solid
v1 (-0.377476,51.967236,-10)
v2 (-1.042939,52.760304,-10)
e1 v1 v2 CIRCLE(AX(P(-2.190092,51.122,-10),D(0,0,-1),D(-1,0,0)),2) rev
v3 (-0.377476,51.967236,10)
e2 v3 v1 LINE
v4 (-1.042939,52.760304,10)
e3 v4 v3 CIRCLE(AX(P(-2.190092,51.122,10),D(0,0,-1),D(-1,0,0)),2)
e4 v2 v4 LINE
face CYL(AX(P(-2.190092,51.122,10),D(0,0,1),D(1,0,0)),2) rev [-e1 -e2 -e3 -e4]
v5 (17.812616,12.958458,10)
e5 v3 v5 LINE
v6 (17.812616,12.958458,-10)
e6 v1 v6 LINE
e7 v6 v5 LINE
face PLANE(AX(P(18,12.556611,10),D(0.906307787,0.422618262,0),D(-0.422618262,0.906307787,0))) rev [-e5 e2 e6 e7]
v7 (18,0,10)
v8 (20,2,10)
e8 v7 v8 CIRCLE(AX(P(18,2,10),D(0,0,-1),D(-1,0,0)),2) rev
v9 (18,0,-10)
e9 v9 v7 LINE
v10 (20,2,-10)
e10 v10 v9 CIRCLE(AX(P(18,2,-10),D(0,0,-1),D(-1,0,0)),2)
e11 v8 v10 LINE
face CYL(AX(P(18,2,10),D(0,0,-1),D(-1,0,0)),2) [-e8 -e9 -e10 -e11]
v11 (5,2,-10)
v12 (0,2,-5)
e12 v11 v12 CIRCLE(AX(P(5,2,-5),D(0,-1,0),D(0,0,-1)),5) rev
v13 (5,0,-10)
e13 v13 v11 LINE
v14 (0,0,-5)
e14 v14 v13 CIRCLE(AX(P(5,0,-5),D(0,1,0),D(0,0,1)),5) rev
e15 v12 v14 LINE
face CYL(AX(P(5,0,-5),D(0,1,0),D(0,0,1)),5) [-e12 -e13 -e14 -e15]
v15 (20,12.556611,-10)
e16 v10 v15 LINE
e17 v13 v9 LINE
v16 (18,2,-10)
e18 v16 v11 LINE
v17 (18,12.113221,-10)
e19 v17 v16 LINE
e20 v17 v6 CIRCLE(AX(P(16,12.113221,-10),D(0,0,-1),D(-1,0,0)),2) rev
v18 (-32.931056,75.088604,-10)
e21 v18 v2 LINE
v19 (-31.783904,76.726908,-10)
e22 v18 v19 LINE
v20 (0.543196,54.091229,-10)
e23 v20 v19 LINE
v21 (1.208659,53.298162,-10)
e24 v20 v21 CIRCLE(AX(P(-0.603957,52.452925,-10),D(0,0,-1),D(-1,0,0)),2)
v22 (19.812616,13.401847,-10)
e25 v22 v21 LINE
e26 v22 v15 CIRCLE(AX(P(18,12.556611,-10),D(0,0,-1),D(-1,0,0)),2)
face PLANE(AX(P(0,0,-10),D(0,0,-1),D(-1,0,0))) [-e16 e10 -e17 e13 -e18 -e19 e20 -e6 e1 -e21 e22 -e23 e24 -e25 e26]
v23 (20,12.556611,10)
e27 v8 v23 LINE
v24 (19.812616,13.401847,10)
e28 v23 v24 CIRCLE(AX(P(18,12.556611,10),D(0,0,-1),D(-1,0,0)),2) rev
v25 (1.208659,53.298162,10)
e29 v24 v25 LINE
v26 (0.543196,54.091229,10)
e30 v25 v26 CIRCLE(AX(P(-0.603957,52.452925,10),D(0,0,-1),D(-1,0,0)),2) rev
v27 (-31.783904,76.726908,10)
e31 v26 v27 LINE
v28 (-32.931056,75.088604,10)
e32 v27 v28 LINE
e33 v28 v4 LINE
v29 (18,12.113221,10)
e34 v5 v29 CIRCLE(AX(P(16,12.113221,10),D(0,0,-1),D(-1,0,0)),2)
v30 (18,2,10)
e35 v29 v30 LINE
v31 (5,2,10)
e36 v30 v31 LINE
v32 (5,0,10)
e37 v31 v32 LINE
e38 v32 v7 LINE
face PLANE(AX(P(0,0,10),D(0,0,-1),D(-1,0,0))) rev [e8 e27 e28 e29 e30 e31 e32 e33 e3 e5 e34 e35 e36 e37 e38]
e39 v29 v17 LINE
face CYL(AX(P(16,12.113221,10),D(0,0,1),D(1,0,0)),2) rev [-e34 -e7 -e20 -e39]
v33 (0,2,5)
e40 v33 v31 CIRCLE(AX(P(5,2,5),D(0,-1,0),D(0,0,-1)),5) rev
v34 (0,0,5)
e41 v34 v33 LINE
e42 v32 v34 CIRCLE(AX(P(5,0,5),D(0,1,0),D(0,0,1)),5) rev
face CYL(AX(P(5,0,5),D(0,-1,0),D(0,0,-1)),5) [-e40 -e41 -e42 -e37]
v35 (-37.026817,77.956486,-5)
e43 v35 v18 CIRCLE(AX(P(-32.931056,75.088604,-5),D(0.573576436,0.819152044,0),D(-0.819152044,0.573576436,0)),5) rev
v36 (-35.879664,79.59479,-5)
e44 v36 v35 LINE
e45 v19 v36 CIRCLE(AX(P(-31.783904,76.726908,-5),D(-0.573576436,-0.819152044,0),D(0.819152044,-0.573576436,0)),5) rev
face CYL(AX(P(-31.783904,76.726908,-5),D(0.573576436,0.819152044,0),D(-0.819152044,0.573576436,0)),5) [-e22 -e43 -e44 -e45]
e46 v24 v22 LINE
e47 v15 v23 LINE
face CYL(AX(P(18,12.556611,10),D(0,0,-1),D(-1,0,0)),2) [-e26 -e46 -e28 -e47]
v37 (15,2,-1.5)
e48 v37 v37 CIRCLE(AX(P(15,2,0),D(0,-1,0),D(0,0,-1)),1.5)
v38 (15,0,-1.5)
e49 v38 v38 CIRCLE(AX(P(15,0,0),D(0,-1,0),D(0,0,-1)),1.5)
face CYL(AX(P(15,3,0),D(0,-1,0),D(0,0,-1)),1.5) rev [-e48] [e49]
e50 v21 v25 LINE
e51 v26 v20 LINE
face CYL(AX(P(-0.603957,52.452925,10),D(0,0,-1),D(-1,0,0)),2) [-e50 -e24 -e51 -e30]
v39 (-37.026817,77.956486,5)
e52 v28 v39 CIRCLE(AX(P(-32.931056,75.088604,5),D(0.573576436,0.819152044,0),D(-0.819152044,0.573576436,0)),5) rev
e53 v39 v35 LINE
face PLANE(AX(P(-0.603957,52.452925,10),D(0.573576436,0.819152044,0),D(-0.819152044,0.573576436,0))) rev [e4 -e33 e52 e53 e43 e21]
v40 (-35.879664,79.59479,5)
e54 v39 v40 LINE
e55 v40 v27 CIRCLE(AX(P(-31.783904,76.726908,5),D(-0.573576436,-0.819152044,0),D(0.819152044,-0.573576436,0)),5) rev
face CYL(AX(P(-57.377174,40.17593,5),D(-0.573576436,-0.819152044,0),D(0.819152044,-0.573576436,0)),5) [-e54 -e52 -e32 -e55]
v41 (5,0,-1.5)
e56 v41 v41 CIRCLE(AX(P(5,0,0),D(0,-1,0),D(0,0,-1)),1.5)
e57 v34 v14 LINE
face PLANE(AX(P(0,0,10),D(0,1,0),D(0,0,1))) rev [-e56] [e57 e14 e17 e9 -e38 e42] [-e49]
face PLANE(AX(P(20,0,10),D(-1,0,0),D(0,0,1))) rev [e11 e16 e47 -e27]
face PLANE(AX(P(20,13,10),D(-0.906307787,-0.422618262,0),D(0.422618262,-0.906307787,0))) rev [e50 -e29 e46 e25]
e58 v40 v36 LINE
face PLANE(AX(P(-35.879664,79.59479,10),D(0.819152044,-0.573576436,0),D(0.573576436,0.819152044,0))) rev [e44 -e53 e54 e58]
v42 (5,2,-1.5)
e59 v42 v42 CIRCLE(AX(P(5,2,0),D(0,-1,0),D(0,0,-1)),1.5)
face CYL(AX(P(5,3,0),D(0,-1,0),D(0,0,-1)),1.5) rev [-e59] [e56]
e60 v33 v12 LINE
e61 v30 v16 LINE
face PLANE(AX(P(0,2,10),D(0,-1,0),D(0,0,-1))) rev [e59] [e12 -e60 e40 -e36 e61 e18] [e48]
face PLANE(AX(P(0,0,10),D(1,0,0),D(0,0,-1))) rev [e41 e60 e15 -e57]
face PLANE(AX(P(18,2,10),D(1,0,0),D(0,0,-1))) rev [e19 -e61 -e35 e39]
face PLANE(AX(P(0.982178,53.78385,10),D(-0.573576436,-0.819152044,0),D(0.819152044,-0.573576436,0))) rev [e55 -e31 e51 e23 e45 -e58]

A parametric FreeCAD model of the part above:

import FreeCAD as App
import Part
import Sketcher

V = App.Vector
Q = App.Units.Quantity


def edges_at(feature, points):
    """Names of the edges that pass closest to the given points."""
    edges = feature.Shape.Edges
    near = lambda p: min(range(len(edges)), key=lambda i: edges[i].distToShape(Part.Vertex(*p))[0])
    return sorted({f"Edge{near(p) + 1}" for p in points})

doc = App.newDocument("Part")
params = doc.addObject("Spreadsheet::Sheet", "Params")
for row, (alias, value) in enumerate([
    ("sketch1_width", "20 mm"),
    ("sketch1_width2", "18 mm"),
    ("sketch1_height", "13 mm"),
    ("sketch1_height2", "2 mm"),
    ("sketch1_length", "45 mm"),
    ("pad1_length", "20 mm"),
    ("fillet_radius", "2 mm"),
    ("fillet2_radius", "5 mm"),
    ("sketch2_diameter", "3 mm"),
    ("pocket1_length", "3 mm"),
], start=1):
    params.set(f"A{row}", alias)
    params.set(f"B{row}", "=" + value)
    params.setAlias(f"B{row}", alias)

body = doc.addObject("PartDesign::Body", "Body")

sketch1 = body.newObject("Sketcher::SketchObject", "Sketch")
sketch1.AttachmentSupport = (doc.getObject("XY_Plane"), [""])
sketch1.MapMode = "FlatFace"
sketch1.addGeometry([
    Part.LineSegment(V(0, 0, 0), V(20, 0, 0)),
    Part.LineSegment(V(20, 0, 0), V(20, 13, 0)),
    Part.LineSegment(V(20, 13, 0), V(0.982178, 53.78385, 0)),
    Part.LineSegment(V(0.982178, 53.78385, 0), V(-35.879664, 79.59479, 0)),
    Part.LineSegment(V(-35.879664, 79.59479, 0), V(-37.026817, 77.956486, 0)),
    Part.LineSegment(V(-37.026817, 77.956486, 0), V(-0.603957, 52.452925, 0)),
    Part.LineSegment(V(-0.603957, 52.452925, 0), V(18, 12.556611, 0)),
    Part.LineSegment(V(18, 12.556611, 0), V(18, 2, 0)),
    Part.LineSegment(V(18, 2, 0), V(0, 2, 0)),
    Part.LineSegment(V(0, 2, 0), V(0, 0, 0)),
], False)
sketch1.addConstraint([
    Sketcher.Constraint("Coincident", 0, 2, 1, 1),
    Sketcher.Constraint("Coincident", 1, 2, 2, 1),
    Sketcher.Constraint("Coincident", 2, 2, 3, 1),
    Sketcher.Constraint("Coincident", 3, 2, 4, 1),
    Sketcher.Constraint("Coincident", 4, 2, 5, 1),
    Sketcher.Constraint("Coincident", 5, 2, 6, 1),
    Sketcher.Constraint("Coincident", 6, 2, 7, 1),
    Sketcher.Constraint("Coincident", 7, 2, 8, 1),
    Sketcher.Constraint("Coincident", 8, 2, 9, 1),
    Sketcher.Constraint("Coincident", 9, 2, 0, 1),
    Sketcher.Constraint("Horizontal", 0),
    Sketcher.Constraint("Vertical", 1),
    Sketcher.Constraint("Vertical", 7),
    Sketcher.Constraint("Horizontal", 8),
    Sketcher.Constraint("Vertical", 9),
    Sketcher.Constraint("Coincident", 9, 2, -1, 1),
    Sketcher.Constraint("Perpendicular", 3, 4),
    Sketcher.Constraint("Perpendicular", 4, 5),
    Sketcher.Constraint("Parallel", 2, 6),
    Sketcher.Constraint("Equal", 2, 3),
    Sketcher.Constraint("DistanceX", 0, 1, 0, 2, Q("20 mm")),
    Sketcher.Constraint("DistanceX", 8, 2, 8, 1, Q("18 mm")),
    Sketcher.Constraint("DistanceY", 1, 1, 1, 2, Q("13 mm")),
    Sketcher.Constraint("DistanceY", 9, 2, 9, 1, Q("2 mm")),
    Sketcher.Constraint("Angle", 2, Q("115 deg")),
    Sketcher.Constraint("Angle", 3, Q("145 deg")),
    Sketcher.Constraint("Distance", 2, Q("45 mm")),
    Sketcher.Constraint("Distance", 4, Q("2 mm")),
    Sketcher.Constraint("Distance", 5, Q("44.464102 mm")),
])
sketch1.setExpression("Constraints[20]", "Params.sketch1_width")
sketch1.setExpression("Constraints[21]", "Params.sketch1_width2")
sketch1.setExpression("Constraints[22]", "Params.sketch1_height")
sketch1.setExpression("Constraints[23]", "Params.sketch1_height2")
sketch1.setExpression("Constraints[26]", "Params.sketch1_length")
pad1 = body.newObject("PartDesign::Pad", "Pad")
pad1.Profile = sketch1
pad1.setExpression("Length", "Params.pad1_length")
pad1.Midplane = True
doc.recompute()

fillet = body.newObject("PartDesign::Fillet", "Fillet")
fillet.Base = (pad1, edges_at(pad1, [
    (18, 12.557, 0),
    (-0.604, 52.453, 0),
    (0.982, 53.784, 0),
    (20, 13, 0),
    (20, 0, 0),
]))
fillet.setExpression("Radius", "Params.fillet_radius")
doc.recompute()

fillet2 = body.newObject("PartDesign::Fillet", "Fillet001")
fillet2.Base = (fillet, edges_at(fillet, [
    (-36.453, 78.776, -10),
    (0, 1, -10),
    (-36.453, 78.776, 10),
    (0, 1, 10),
]))
fillet2.setExpression("Radius", "Params.fillet2_radius")

sketch2 = body.newObject("Sketcher::SketchObject", "Sketch001")
sketch2.AttachmentSupport = (doc.getObject("XZ_Plane"), [""])
sketch2.MapMode = "FlatFace"
sketch2.addGeometry([
    Part.Circle(V(5, 0, 0), V(0, 0, 1), 1.5),
    Part.Circle(V(15, 0, 0), V(0, 0, 1), 1.5),
], False)
sketch2.addConstraint([
    Sketcher.Constraint("Equal", 0, 1),
    Sketcher.Constraint("PointOnObject", 0, 3, -1),
    Sketcher.Constraint("PointOnObject", 1, 3, -1),
    Sketcher.Constraint("Diameter", 0, Q("3 mm")),
    Sketcher.Constraint("DistanceX", -1, 1, 0, 3, Q("5 mm")),
    Sketcher.Constraint("DistanceX", -1, 1, 1, 3, Q("15 mm")),
])
sketch2.setExpression("Constraints[3]", "Params.sketch2_diameter")
pocket1 = body.newObject("PartDesign::Pocket", "Pocket")
pocket1.Profile = sketch2
pocket1.setExpression("Length", "Params.pocket1_length")

doc.recompute()
